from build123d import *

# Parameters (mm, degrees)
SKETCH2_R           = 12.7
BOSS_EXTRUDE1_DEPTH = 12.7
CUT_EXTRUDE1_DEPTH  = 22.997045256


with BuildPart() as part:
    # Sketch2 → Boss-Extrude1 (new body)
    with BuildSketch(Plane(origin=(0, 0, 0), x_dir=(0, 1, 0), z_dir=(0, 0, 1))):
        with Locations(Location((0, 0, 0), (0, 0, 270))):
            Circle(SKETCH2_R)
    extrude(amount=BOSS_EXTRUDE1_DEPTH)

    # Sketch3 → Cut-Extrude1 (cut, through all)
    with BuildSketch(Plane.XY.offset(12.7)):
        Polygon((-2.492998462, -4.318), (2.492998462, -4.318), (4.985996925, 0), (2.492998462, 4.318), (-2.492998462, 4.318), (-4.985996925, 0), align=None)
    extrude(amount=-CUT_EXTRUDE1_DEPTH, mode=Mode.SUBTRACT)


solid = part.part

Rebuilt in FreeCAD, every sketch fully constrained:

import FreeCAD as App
import Part
import Sketcher
Q = App.Units.Quantity

doc = App.newDocument("Part")
body = doc.addObject("PartDesign::Body", "Body")

# Sketch on XY plane
sketch1 = body.newObject("Sketcher::SketchObject", "Sketch")
sketch1.AttachmentSupport = (doc.getObject("XY_Plane"), [""])
sketch1.MapMode = "FlatFace"
sketch1.addGeometry(Part.Circle(App.Vector(0, 0, 0), App.Vector(0, 0, 1), 12.7), False)
sketch1.addConstraint([
    Sketcher.Constraint("Coincident", 0, 3, -1, 1),
    Sketcher.Constraint("Diameter", 0, Q("1 in")),
])
pad1 = body.newObject("PartDesign::Pad", "Pad")
pad1.Profile = sketch1
pad1.Length = Q("0.5 in")

# Sketch on XY plane
sketch2 = body.newObject("Sketcher::SketchObject", "Sketch001")
sketch2.AttachmentSupport = (doc.getObject("XY_Plane"), [""])
sketch2.MapMode = "FlatFace"
sketch2.AttachmentOffset = App.Placement(App.Vector(0, 0, 0.5 * 25.4), App.Rotation())
sketch2.addGeometry([
    Part.LineSegment(App.Vector(-2.492998, -4.318, 0), App.Vector(2.492998, -4.318, 0)),  # 0
    Part.LineSegment(App.Vector(2.492998, -4.318, 0), App.Vector(4.985997, 0, 0)),  # 1
    Part.LineSegment(App.Vector(4.985997, 0, 0), App.Vector(2.492998, 4.318, 0)),  # 2
    Part.LineSegment(App.Vector(2.492998, 4.318, 0), App.Vector(-2.492998, 4.318, 0)),  # 3
    Part.LineSegment(App.Vector(-2.492998, 4.318, 0), App.Vector(-4.985997, 0, 0)),  # 4
    Part.LineSegment(App.Vector(-4.985997, 0, 0), App.Vector(-2.492998, -4.318, 0)),  # 5
], False)
sketch2.addConstraint([
    Sketcher.Constraint("Coincident", 0, 2, 1, 1),
    Sketcher.Constraint("Coincident", 1, 2, 2, 1),
    Sketcher.Constraint("Coincident", 2, 2, 3, 1),
    Sketcher.Constraint("Coincident", 3, 2, 4, 1),
    Sketcher.Constraint("Coincident", 4, 2, 5, 1),
    Sketcher.Constraint("Coincident", 5, 2, 0, 1),
    Sketcher.Constraint("Horizontal", 0),
    Sketcher.Constraint("Horizontal", 3),
    Sketcher.Constraint("Symmetric", 0, 2, 3, 2, -1, 1),
    Sketcher.Constraint("Symmetric", 1, 2, 4, 2, -1, 1),
    Sketcher.Constraint("PointOnObject", 1, 2, -1),
    Sketcher.Constraint("Parallel", 2, 5),
    Sketcher.Constraint("Vertical", 0, 2, 2, 2),
    Sketcher.Constraint("Angle", 1, Q("60 deg")),
    Sketcher.Constraint("DistanceY", 0, 2, -1, 1, Q("0.17 in")),
    Sketcher.Constraint("DistanceX", -1, 1, 0, 2, 2.492998),
])
pocket1 = body.newObject("PartDesign::Pocket", "Pocket")
pocket1.Profile = sketch2
pocket1.Type = "ThroughAll"

doc.recompute()
